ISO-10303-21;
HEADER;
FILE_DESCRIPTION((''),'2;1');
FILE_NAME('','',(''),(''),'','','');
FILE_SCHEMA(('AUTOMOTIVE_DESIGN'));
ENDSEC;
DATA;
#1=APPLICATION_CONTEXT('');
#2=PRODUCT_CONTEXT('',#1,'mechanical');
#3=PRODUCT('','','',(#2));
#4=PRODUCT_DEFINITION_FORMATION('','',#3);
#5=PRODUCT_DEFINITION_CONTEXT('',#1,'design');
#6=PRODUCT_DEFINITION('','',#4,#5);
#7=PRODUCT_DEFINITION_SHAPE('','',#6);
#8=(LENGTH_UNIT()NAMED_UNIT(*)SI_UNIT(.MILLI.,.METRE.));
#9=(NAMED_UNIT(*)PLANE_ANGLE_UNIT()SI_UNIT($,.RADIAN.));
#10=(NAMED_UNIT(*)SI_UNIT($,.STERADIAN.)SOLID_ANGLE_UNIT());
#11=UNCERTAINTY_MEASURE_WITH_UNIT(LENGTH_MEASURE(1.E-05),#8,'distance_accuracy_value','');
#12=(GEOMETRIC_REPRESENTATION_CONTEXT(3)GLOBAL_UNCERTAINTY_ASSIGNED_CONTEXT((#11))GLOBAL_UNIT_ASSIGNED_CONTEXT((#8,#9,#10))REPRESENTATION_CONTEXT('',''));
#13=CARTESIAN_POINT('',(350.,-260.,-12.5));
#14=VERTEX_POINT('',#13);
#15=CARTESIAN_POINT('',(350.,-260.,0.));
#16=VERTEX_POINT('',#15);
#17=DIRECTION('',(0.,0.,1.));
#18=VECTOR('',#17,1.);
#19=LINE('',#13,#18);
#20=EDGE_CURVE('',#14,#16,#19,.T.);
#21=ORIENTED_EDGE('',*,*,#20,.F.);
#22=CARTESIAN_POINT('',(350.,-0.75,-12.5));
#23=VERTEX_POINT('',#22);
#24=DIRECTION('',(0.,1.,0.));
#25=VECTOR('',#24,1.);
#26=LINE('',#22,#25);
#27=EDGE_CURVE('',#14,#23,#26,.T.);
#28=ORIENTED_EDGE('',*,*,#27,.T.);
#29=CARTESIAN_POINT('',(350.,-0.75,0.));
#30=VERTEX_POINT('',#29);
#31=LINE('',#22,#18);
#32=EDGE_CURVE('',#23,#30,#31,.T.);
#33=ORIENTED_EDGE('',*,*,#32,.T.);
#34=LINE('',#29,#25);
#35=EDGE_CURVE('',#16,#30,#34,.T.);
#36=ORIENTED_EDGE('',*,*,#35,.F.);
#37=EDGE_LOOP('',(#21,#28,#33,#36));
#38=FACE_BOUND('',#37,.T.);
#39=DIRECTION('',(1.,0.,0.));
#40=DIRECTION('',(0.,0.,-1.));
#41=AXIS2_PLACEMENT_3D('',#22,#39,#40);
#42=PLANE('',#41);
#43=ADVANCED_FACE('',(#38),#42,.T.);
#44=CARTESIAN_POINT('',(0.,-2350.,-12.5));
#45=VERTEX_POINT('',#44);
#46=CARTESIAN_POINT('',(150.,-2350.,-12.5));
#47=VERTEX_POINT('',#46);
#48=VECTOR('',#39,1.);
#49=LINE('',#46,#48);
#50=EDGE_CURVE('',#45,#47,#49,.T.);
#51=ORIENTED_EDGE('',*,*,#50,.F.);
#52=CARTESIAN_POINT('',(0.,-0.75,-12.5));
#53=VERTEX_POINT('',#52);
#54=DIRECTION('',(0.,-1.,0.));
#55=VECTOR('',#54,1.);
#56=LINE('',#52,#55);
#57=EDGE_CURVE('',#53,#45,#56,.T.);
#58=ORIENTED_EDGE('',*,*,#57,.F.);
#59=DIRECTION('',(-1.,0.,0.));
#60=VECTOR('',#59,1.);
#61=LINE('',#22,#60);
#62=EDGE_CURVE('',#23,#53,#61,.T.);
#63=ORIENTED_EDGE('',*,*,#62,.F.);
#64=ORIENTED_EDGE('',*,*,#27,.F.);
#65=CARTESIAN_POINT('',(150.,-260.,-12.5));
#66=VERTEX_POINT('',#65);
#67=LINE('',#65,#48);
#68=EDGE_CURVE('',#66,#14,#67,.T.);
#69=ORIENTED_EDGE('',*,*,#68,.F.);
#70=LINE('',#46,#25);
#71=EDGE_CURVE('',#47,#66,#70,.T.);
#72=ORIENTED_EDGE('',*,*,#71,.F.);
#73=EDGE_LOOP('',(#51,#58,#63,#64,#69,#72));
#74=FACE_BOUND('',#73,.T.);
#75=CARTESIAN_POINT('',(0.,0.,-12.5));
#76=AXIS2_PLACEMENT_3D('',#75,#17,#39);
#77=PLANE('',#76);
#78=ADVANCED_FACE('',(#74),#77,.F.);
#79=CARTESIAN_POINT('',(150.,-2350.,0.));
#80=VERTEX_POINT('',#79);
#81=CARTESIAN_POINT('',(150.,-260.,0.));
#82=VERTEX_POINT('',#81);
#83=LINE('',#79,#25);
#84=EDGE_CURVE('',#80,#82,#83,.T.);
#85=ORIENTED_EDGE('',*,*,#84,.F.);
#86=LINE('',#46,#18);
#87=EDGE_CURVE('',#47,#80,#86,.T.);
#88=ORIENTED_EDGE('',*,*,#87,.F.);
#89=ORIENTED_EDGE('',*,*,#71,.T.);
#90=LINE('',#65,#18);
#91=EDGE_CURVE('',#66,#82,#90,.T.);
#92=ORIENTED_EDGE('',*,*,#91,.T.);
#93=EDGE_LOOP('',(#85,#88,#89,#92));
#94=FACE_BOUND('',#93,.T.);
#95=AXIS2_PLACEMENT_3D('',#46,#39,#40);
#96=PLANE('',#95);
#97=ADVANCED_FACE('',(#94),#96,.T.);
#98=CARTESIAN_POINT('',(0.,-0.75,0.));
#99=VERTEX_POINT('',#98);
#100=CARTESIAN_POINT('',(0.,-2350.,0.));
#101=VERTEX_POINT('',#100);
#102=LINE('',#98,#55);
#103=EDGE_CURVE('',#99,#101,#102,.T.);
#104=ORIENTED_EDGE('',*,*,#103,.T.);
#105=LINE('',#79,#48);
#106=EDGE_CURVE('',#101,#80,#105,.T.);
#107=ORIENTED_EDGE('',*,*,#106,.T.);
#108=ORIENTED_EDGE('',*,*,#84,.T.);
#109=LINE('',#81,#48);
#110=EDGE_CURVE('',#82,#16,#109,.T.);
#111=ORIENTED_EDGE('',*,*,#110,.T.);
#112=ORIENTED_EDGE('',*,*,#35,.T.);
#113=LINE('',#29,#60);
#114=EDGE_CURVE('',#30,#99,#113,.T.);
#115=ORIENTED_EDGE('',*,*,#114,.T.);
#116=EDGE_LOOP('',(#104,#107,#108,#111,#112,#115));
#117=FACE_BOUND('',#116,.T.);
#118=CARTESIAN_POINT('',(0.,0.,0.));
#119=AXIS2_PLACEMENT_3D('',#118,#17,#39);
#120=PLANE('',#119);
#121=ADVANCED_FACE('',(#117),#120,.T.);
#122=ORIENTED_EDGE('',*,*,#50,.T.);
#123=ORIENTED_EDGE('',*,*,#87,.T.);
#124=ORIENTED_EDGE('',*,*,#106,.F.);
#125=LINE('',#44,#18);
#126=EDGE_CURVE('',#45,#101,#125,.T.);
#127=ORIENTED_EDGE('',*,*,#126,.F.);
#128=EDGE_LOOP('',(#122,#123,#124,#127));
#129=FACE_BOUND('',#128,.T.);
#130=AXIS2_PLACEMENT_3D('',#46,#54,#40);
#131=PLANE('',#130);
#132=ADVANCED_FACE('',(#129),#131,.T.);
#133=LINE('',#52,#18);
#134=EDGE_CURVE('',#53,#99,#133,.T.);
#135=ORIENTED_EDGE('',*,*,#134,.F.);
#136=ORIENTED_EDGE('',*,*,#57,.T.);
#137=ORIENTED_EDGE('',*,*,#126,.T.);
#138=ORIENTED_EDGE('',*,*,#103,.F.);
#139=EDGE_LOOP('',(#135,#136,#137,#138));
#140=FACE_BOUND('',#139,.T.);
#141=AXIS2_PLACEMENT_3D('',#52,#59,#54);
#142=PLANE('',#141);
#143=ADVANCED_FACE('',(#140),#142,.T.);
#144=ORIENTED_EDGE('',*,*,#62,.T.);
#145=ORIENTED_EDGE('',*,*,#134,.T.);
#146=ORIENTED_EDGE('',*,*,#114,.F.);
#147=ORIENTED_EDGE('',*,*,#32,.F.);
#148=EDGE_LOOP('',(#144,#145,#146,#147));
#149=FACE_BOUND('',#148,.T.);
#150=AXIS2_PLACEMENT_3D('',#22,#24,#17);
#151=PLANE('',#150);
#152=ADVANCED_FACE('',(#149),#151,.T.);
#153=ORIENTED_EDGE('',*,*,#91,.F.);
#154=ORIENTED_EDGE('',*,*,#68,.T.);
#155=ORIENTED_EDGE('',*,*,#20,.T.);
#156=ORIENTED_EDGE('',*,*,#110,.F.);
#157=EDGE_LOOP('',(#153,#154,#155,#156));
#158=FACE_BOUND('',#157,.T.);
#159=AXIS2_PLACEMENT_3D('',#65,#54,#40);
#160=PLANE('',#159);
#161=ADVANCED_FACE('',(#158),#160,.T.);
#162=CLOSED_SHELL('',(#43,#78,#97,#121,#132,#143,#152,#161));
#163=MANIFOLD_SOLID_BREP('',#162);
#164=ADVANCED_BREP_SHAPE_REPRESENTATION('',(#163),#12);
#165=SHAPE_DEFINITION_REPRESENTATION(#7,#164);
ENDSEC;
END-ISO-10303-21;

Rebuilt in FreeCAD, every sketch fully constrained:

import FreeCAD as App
import Part
import Sketcher
from FreeCAD import Vector

doc = App.newDocument("Part")
params = doc.addObject("Spreadsheet::Sheet", "Params")
for row, (alias, value) in enumerate([
    ("sketch1_width", "350 mm"),
    ("sketch1_width2", "150 mm"),
    ("sketch1_height", "2090 mm"),
    ("sketch1_height2", "2349.25 mm"),
    ("pad1_length", "12.5 mm"),
], start=1):
    params.set(f"A{row}", alias)
    params.set(f"B{row}", "=" + value)
    params.setAlias(f"B{row}", alias)

body = doc.addObject("PartDesign::Body", "Body")

# Sketch on XY plane
sketch1 = body.newObject("Sketcher::SketchObject", "Sketch")
sketch1.AttachmentSupport = (doc.getObject("XY_Plane"), [""])
sketch1.MapMode = "FlatFace"
sketch1.addGeometry(Part.LineSegment(Vector(350, -1, 0), Vector(0, -1, 0)), False)
sketch1.addGeometry(Part.LineSegment(Vector(0, -1, 0), Vector(0, -2350, 0)), False)
sketch1.addGeometry(Part.LineSegment(Vector(0, -2350, 0), Vector(150, -2350, 0)), False)
sketch1.addGeometry(Part.LineSegment(Vector(150, -2350, 0), Vector(150, -260, 0)), False)
sketch1.addGeometry(Part.LineSegment(Vector(150, -260, 0), Vector(350, -260, 0)), False)
sketch1.addGeometry(Part.LineSegment(Vector(350, -260, 0), Vector(350, -1, 0)), False)
sketch1.addConstraint(Sketcher.Constraint("Coincident", 0, 2, 1, 1))
sketch1.addConstraint(Sketcher.Constraint("Coincident", 1, 2, 2, 1))
sketch1.addConstraint(Sketcher.Constraint("Coincident", 2, 2, 3, 1))
sketch1.addConstraint(Sketcher.Constraint("Coincident", 3, 2, 4, 1))
sketch1.addConstraint(Sketcher.Constraint("Coincident", 4, 2, 5, 1))
sketch1.addConstraint(Sketcher.Constraint("Coincident", 5, 2, 0, 1))
sketch1.addConstraint(Sketcher.Constraint("Horizontal", 0))
sketch1.addConstraint(Sketcher.Constraint("Vertical", 1))
sketch1.addConstraint(Sketcher.Constraint("Horizontal", 2))
sketch1.addConstraint(Sketcher.Constraint("Vertical", 3))
sketch1.addConstraint(Sketcher.Constraint("Horizontal", 4))
sketch1.addConstraint(Sketcher.Constraint("Vertical", 5))
sketch1.addConstraint(Sketcher.Constraint("PointOnObject", 0, 2, -2))
sketch1.addConstraint(Sketcher.Constraint("DistanceX", 0, 2, 0, 1, 350.0))
sketch1.addConstraint(Sketcher.Constraint("DistanceX", 2, 1, 2, 2, 150.0))
sketch1.addConstraint(Sketcher.Constraint("DistanceY", 3, 1, 3, 2, 2090.0))
sketch1.addConstraint(Sketcher.Constraint("DistanceY", 1, 2, -1, 1, 2350.0))
sketch1.addConstraint(Sketcher.Constraint("DistanceY", 1, 2, 1, 1, 2349.25))
sketch1.setExpression("Constraints[13]", "Params.sketch1_width")
sketch1.setExpression("Constraints[14]", "Params.sketch1_width2")
sketch1.setExpression("Constraints[15]", "Params.sketch1_height")
sketch1.setExpression("Constraints[17]", "Params.sketch1_height2")
pad1 = body.newObject("PartDesign::Pad", "Pad")
pad1.Profile = sketch1
pad1.setExpression("Length", "Params.pad1_length")
pad1.Reversed = True

doc.recompute()
